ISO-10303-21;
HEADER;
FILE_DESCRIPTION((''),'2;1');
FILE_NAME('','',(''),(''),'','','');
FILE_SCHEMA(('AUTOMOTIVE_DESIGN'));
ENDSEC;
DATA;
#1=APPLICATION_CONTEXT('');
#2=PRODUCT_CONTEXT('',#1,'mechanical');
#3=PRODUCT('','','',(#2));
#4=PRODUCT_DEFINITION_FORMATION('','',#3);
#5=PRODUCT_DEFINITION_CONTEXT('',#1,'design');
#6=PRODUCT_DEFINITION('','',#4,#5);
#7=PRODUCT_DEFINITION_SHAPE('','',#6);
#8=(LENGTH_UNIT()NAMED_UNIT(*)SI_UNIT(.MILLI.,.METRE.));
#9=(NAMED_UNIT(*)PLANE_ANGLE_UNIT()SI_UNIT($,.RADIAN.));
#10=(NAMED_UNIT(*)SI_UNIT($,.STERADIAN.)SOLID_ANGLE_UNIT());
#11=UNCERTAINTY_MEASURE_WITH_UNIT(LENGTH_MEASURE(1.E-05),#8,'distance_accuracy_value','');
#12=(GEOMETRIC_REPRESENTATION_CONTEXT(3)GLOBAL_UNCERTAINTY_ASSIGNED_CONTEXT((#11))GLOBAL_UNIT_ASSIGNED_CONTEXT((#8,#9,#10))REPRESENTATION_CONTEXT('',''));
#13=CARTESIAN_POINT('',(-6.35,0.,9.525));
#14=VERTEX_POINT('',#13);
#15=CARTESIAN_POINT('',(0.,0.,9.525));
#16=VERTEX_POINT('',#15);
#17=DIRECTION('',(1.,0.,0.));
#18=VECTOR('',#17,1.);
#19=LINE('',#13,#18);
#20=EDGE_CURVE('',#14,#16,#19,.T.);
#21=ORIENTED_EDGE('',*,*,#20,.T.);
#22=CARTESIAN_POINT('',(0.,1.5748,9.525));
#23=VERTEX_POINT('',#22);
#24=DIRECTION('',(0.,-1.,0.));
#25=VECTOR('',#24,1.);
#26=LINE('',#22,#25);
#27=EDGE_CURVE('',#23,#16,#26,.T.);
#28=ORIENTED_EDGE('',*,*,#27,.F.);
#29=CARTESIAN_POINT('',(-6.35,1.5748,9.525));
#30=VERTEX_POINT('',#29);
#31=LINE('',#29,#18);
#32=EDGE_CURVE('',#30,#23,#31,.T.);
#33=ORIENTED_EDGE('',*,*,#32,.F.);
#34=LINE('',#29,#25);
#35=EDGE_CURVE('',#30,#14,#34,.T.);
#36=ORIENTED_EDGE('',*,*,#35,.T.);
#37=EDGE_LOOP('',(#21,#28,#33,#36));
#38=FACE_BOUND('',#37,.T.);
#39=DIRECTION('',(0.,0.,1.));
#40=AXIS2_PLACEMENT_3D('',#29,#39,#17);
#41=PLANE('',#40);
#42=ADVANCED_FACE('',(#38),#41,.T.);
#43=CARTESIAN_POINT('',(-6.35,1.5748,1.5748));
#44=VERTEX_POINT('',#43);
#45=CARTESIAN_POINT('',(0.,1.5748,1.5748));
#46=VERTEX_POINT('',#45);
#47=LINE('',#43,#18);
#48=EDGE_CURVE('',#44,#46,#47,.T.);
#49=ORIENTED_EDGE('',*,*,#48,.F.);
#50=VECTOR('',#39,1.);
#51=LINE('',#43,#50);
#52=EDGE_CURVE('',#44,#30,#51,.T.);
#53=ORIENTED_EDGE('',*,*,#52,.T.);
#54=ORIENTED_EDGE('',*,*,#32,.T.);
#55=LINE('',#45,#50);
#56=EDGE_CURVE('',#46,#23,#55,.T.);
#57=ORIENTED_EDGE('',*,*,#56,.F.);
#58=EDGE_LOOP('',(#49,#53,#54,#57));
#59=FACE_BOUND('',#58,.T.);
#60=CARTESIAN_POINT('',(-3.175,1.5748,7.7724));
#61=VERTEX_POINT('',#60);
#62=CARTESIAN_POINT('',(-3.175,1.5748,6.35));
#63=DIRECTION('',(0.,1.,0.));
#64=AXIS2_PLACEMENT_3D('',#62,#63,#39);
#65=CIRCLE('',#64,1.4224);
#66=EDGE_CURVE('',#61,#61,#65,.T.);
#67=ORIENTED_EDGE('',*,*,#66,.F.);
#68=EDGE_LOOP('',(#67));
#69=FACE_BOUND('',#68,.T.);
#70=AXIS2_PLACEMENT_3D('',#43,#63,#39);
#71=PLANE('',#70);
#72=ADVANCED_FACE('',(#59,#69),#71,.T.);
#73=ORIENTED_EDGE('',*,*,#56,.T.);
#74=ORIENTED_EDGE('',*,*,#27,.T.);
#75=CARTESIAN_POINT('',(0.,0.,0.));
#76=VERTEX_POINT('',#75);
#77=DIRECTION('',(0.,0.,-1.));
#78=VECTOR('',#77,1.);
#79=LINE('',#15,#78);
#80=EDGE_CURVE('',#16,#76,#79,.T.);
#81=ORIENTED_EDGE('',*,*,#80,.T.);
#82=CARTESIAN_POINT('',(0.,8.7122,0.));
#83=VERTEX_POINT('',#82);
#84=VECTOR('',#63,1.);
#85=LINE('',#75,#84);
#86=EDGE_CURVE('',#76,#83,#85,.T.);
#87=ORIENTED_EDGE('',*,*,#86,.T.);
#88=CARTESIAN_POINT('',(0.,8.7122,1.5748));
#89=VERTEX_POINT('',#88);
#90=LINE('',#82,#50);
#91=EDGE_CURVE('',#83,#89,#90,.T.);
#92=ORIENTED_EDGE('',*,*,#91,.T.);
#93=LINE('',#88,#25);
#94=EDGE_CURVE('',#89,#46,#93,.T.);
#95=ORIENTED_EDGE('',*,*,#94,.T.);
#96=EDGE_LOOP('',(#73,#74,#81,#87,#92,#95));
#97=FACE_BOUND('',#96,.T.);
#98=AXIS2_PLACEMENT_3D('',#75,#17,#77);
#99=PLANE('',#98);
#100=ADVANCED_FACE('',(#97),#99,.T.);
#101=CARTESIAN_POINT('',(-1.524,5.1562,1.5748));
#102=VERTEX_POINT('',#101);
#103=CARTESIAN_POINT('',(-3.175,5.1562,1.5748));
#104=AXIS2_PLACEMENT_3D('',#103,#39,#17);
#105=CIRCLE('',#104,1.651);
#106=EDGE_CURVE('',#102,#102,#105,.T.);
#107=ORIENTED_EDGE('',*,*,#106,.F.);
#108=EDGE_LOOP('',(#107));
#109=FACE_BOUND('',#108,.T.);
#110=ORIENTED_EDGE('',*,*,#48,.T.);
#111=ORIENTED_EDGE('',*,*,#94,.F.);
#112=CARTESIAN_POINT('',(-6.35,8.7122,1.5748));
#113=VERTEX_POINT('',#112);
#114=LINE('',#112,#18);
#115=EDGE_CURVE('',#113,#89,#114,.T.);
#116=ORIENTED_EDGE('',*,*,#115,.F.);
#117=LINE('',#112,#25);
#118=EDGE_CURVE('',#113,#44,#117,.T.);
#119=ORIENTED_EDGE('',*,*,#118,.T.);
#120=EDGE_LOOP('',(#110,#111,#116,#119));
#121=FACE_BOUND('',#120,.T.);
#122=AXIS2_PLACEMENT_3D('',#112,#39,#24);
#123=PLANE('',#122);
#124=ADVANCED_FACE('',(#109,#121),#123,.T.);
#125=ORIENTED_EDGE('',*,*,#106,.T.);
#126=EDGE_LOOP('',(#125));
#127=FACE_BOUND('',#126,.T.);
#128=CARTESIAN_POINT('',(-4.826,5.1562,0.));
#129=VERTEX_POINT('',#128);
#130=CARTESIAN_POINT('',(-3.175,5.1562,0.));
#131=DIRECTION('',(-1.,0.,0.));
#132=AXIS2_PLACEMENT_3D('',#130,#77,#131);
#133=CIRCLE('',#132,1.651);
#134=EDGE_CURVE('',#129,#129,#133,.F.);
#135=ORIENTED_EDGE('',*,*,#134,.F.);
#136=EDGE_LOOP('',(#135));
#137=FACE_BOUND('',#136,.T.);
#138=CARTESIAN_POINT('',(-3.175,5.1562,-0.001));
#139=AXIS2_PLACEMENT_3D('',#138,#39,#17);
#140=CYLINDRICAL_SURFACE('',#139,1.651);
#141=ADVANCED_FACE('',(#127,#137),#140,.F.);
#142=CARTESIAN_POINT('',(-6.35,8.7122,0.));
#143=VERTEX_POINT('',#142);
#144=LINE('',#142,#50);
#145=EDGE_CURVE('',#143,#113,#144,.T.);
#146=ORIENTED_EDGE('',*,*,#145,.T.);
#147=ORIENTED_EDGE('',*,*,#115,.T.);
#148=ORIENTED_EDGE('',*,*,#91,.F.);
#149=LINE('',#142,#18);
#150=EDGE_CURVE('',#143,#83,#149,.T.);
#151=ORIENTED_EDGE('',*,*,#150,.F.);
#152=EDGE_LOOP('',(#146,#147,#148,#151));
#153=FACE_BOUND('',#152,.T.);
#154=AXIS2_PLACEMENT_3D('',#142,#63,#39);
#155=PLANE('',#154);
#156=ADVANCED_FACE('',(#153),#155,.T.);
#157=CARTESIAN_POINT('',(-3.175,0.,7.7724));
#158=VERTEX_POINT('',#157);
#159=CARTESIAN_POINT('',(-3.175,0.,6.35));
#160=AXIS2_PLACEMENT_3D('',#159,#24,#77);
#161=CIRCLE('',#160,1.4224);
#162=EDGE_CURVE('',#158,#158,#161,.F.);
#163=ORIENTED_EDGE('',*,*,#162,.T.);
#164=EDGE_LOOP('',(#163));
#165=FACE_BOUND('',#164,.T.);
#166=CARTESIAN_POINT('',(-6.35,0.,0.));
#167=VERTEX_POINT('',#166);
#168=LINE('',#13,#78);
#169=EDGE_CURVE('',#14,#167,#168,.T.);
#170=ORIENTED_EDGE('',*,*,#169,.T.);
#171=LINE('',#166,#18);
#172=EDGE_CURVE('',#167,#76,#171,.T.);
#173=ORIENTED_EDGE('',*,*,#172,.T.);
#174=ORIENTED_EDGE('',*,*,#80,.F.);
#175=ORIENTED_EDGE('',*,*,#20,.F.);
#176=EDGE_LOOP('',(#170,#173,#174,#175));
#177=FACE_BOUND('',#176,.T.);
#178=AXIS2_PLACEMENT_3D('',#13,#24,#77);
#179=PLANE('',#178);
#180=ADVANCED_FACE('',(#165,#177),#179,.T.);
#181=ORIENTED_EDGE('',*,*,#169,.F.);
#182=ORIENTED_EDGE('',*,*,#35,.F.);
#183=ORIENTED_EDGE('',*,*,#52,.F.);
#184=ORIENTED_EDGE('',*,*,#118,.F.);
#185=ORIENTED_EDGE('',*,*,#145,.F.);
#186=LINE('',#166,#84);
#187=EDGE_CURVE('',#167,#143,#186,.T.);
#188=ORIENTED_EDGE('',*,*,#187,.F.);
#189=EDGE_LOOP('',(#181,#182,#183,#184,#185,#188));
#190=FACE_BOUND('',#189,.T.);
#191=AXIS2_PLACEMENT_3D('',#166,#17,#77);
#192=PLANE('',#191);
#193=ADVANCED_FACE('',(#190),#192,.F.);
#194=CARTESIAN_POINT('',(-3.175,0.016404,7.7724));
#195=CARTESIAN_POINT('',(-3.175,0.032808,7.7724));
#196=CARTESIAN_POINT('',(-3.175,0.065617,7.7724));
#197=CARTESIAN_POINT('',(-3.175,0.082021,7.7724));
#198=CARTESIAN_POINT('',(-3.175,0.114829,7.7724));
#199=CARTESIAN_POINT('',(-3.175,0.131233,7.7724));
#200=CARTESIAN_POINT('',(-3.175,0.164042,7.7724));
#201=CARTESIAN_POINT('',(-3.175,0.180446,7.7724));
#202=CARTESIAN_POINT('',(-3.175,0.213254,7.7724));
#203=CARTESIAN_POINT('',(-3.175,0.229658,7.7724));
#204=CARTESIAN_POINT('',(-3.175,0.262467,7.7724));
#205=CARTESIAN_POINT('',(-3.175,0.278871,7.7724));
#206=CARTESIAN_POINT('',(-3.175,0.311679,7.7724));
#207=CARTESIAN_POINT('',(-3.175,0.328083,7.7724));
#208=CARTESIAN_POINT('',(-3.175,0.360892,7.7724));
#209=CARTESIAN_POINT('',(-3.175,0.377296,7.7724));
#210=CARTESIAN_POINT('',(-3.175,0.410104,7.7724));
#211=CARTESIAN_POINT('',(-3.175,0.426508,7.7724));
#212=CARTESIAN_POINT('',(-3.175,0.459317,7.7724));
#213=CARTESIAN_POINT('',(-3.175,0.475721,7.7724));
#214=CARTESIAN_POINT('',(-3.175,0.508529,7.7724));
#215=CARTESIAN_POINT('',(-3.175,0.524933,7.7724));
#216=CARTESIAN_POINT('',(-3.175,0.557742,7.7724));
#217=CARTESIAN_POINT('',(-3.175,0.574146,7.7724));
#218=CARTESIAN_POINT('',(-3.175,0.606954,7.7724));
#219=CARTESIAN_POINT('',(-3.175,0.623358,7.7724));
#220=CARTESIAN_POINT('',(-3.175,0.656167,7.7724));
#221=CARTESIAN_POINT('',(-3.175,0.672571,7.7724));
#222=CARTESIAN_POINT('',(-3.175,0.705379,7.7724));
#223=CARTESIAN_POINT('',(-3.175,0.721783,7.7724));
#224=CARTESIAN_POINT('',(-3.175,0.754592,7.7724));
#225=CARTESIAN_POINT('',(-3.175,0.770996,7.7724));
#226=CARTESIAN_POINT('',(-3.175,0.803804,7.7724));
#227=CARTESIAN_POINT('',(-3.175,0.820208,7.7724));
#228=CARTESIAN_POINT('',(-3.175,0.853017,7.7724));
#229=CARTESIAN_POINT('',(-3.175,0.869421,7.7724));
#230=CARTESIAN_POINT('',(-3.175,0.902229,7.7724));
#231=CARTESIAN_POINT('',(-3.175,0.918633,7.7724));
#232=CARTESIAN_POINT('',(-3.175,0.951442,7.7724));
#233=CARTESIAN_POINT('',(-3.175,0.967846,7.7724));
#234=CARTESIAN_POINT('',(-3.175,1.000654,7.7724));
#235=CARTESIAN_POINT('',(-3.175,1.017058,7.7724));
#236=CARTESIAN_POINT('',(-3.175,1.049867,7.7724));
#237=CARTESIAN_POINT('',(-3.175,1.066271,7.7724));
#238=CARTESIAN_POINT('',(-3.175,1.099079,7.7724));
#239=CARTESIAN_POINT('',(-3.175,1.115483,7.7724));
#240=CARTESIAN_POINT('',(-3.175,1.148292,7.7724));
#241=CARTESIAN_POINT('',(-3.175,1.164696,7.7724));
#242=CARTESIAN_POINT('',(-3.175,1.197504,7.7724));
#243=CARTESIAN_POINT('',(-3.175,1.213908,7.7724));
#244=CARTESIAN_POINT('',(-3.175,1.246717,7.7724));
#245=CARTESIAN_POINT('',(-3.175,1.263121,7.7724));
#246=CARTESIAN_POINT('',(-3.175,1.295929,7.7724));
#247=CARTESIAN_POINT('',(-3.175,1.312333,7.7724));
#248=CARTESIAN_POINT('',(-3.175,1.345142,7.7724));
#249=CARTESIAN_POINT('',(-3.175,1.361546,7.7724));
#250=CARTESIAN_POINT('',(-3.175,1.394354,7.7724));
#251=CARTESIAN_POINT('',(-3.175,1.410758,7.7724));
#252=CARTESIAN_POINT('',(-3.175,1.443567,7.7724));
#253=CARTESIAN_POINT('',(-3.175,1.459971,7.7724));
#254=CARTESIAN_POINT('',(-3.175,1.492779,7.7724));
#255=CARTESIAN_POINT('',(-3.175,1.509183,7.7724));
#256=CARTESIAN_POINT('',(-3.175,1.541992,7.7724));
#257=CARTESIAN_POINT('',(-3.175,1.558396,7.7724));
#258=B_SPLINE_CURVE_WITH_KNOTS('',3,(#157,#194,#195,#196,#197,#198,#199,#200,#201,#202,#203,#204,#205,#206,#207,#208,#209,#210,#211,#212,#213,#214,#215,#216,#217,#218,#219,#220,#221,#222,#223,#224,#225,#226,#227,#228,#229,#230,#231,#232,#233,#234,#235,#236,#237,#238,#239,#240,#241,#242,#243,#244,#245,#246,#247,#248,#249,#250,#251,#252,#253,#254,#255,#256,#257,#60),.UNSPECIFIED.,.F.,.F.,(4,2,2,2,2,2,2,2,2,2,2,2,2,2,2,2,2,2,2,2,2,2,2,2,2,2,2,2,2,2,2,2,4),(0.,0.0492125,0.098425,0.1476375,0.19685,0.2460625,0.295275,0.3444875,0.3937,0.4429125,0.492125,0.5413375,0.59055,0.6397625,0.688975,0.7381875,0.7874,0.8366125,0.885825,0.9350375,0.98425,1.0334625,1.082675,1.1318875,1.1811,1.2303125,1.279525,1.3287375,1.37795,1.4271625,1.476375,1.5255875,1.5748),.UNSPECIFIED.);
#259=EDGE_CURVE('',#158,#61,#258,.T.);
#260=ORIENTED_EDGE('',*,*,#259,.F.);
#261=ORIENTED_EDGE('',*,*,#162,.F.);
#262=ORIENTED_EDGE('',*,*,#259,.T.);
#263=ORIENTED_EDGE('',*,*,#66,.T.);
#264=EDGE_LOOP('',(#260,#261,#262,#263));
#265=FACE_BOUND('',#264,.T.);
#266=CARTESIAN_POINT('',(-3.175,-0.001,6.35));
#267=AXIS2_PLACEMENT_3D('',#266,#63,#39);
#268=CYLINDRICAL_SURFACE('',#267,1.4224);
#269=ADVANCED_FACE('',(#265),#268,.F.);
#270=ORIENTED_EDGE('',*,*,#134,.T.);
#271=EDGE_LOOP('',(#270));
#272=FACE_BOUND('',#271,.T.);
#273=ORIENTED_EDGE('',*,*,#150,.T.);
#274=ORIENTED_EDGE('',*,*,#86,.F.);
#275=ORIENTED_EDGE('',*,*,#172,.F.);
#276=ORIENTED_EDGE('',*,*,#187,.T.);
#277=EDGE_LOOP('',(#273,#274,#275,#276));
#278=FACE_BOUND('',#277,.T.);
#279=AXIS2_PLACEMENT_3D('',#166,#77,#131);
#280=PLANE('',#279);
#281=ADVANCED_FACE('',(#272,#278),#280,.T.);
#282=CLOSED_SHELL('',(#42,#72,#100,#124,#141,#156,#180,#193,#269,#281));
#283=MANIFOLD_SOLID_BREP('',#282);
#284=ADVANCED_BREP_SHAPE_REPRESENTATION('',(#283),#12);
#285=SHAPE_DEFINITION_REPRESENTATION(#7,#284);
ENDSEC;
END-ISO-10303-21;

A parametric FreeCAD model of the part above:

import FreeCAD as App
import Part
import Sketcher

V = App.Vector
Q = App.Units.Quantity

doc = App.newDocument("Part")
body = doc.addObject("PartDesign::Body", "Body")

sketch1 = doc.addObject("Sketcher::SketchObject", "Sketch")
body.addObject(sketch1)
sketch1.AttachmentSupport = (doc.YZ_Plane, [""])
sketch1.MapMode = "FlatFace"
sketch1.addGeometry(Part.LineSegment(V(0, 0, 0), V(8.7122, 0, 0)), False)
sketch1.addGeometry(Part.LineSegment(V(8.7122, 0, 0), V(8.7122, 1.5748, 0)), False)
sketch1.addGeometry(Part.LineSegment(V(8.7122, 1.5748, 0), V(1.5748, 1.5748, 0)), False)
sketch1.addGeometry(Part.LineSegment(V(1.5748, 1.5748, 0), V(1.5748, 9.525, 0)), False)
sketch1.addGeometry(Part.LineSegment(V(1.5748, 9.525, 0), V(0, 9.525, 0)), False)
sketch1.addGeometry(Part.LineSegment(V(0, 9.525, 0), V(0, 0, 0)), False)
sketch1.addConstraint(Sketcher.Constraint("Coincident", 0, 2, 1, 1))
sketch1.addConstraint(Sketcher.Constraint("Coincident", 1, 2, 2, 1))
sketch1.addConstraint(Sketcher.Constraint("Coincident", 2, 2, 3, 1))
sketch1.addConstraint(Sketcher.Constraint("Coincident", 3, 2, 4, 1))
sketch1.addConstraint(Sketcher.Constraint("Coincident", 4, 2, 5, 1))
sketch1.addConstraint(Sketcher.Constraint("Coincident", 5, 2, 0, 1))
sketch1.addConstraint(Sketcher.Constraint("Horizontal", 0))
sketch1.addConstraint(Sketcher.Constraint("Vertical", 1))
sketch1.addConstraint(Sketcher.Constraint("Horizontal", 2))
sketch1.addConstraint(Sketcher.Constraint("Vertical", 3))
sketch1.addConstraint(Sketcher.Constraint("Horizontal", 4))
sketch1.addConstraint(Sketcher.Constraint("Vertical", 5))
sketch1.addConstraint(Sketcher.Constraint("Coincident", 5, 2, -1, 1))
sketch1.addConstraint(Sketcher.Constraint("Equal", 4, 1))
sketch1.addConstraint(Sketcher.Constraint("DistanceX", 0, 1, 0, 2, Q("0.343 in")))
sketch1.addConstraint(Sketcher.Constraint("DistanceX", 2, 2, 2, 1, Q("0.281 in")))
sketch1.addConstraint(Sketcher.Constraint("DistanceY", 3, 1, 3, 2, Q("0.313 in")))
pad1 = doc.addObject("PartDesign::Pad", "Pad")
body.addObject(pad1)
pad1.Profile = sketch1
pad1.Length = Q("0.25 in")
pad1.Reversed = True

sketch2 = doc.addObject("Sketcher::SketchObject", "Sketch001")
body.addObject(sketch2)
sketch2.AttachmentSupport = (doc.XY_Plane, [""])
sketch2.MapMode = "FlatFace"
sketch2.AttachmentOffset = App.Placement(V(0, 0, 0.062 * 25.4), App.Rotation())
sketch2.addGeometry(Part.Circle(V(-3.175, 5.1562, 0), V(0, 0, 1), 1.651), False)
sketch2.addConstraint(Sketcher.Constraint("Diameter", 0, Q("0.13 in")))
sketch2.addConstraint(Sketcher.Constraint("DistanceX", 0, 3, -1, 1, Q("0.125 in")))
sketch2.addConstraint(Sketcher.Constraint("DistanceY", -1, 1, 0, 3, Q("0.203 in")))
pocket1 = doc.addObject("PartDesign::Pocket", "Pocket")
body.addObject(pocket1)
pocket1.Profile = sketch2
pocket1.Type = "UpToFirst"

sketch3 = doc.addObject("Sketcher::SketchObject", "Sketch002")
body.addObject(sketch3)
sketch3.AttachmentSupport = (doc.XZ_Plane, [""])
sketch3.MapMode = "FlatFace"
sketch3.AttachmentOffset = App.Placement(V(0, 0, -0.062 * 25.4), App.Rotation())
sketch3.addGeometry(Part.Circle(V(-3.175, 6.35, 0), V(0, 0, 1), 1.4224), False)
sketch3.addConstraint(Sketcher.Constraint("Diameter", 0, Q("0.112 in")))
sketch3.addConstraint(Sketcher.Constraint("DistanceY", -1, 1, 0, 3, Q("0.25 in")))
sketch3.addConstraint(Sketcher.Constraint("DistanceX", 0, 3, -1, 1, Q("0.125 in")))
pocket2 = doc.addObject("PartDesign::Pocket", "Pocket001")
body.addObject(pocket2)
pocket2.Profile = sketch3
pocket2.Type = "UpToFirst"
pocket2.Reversed = True

doc.recompute()
